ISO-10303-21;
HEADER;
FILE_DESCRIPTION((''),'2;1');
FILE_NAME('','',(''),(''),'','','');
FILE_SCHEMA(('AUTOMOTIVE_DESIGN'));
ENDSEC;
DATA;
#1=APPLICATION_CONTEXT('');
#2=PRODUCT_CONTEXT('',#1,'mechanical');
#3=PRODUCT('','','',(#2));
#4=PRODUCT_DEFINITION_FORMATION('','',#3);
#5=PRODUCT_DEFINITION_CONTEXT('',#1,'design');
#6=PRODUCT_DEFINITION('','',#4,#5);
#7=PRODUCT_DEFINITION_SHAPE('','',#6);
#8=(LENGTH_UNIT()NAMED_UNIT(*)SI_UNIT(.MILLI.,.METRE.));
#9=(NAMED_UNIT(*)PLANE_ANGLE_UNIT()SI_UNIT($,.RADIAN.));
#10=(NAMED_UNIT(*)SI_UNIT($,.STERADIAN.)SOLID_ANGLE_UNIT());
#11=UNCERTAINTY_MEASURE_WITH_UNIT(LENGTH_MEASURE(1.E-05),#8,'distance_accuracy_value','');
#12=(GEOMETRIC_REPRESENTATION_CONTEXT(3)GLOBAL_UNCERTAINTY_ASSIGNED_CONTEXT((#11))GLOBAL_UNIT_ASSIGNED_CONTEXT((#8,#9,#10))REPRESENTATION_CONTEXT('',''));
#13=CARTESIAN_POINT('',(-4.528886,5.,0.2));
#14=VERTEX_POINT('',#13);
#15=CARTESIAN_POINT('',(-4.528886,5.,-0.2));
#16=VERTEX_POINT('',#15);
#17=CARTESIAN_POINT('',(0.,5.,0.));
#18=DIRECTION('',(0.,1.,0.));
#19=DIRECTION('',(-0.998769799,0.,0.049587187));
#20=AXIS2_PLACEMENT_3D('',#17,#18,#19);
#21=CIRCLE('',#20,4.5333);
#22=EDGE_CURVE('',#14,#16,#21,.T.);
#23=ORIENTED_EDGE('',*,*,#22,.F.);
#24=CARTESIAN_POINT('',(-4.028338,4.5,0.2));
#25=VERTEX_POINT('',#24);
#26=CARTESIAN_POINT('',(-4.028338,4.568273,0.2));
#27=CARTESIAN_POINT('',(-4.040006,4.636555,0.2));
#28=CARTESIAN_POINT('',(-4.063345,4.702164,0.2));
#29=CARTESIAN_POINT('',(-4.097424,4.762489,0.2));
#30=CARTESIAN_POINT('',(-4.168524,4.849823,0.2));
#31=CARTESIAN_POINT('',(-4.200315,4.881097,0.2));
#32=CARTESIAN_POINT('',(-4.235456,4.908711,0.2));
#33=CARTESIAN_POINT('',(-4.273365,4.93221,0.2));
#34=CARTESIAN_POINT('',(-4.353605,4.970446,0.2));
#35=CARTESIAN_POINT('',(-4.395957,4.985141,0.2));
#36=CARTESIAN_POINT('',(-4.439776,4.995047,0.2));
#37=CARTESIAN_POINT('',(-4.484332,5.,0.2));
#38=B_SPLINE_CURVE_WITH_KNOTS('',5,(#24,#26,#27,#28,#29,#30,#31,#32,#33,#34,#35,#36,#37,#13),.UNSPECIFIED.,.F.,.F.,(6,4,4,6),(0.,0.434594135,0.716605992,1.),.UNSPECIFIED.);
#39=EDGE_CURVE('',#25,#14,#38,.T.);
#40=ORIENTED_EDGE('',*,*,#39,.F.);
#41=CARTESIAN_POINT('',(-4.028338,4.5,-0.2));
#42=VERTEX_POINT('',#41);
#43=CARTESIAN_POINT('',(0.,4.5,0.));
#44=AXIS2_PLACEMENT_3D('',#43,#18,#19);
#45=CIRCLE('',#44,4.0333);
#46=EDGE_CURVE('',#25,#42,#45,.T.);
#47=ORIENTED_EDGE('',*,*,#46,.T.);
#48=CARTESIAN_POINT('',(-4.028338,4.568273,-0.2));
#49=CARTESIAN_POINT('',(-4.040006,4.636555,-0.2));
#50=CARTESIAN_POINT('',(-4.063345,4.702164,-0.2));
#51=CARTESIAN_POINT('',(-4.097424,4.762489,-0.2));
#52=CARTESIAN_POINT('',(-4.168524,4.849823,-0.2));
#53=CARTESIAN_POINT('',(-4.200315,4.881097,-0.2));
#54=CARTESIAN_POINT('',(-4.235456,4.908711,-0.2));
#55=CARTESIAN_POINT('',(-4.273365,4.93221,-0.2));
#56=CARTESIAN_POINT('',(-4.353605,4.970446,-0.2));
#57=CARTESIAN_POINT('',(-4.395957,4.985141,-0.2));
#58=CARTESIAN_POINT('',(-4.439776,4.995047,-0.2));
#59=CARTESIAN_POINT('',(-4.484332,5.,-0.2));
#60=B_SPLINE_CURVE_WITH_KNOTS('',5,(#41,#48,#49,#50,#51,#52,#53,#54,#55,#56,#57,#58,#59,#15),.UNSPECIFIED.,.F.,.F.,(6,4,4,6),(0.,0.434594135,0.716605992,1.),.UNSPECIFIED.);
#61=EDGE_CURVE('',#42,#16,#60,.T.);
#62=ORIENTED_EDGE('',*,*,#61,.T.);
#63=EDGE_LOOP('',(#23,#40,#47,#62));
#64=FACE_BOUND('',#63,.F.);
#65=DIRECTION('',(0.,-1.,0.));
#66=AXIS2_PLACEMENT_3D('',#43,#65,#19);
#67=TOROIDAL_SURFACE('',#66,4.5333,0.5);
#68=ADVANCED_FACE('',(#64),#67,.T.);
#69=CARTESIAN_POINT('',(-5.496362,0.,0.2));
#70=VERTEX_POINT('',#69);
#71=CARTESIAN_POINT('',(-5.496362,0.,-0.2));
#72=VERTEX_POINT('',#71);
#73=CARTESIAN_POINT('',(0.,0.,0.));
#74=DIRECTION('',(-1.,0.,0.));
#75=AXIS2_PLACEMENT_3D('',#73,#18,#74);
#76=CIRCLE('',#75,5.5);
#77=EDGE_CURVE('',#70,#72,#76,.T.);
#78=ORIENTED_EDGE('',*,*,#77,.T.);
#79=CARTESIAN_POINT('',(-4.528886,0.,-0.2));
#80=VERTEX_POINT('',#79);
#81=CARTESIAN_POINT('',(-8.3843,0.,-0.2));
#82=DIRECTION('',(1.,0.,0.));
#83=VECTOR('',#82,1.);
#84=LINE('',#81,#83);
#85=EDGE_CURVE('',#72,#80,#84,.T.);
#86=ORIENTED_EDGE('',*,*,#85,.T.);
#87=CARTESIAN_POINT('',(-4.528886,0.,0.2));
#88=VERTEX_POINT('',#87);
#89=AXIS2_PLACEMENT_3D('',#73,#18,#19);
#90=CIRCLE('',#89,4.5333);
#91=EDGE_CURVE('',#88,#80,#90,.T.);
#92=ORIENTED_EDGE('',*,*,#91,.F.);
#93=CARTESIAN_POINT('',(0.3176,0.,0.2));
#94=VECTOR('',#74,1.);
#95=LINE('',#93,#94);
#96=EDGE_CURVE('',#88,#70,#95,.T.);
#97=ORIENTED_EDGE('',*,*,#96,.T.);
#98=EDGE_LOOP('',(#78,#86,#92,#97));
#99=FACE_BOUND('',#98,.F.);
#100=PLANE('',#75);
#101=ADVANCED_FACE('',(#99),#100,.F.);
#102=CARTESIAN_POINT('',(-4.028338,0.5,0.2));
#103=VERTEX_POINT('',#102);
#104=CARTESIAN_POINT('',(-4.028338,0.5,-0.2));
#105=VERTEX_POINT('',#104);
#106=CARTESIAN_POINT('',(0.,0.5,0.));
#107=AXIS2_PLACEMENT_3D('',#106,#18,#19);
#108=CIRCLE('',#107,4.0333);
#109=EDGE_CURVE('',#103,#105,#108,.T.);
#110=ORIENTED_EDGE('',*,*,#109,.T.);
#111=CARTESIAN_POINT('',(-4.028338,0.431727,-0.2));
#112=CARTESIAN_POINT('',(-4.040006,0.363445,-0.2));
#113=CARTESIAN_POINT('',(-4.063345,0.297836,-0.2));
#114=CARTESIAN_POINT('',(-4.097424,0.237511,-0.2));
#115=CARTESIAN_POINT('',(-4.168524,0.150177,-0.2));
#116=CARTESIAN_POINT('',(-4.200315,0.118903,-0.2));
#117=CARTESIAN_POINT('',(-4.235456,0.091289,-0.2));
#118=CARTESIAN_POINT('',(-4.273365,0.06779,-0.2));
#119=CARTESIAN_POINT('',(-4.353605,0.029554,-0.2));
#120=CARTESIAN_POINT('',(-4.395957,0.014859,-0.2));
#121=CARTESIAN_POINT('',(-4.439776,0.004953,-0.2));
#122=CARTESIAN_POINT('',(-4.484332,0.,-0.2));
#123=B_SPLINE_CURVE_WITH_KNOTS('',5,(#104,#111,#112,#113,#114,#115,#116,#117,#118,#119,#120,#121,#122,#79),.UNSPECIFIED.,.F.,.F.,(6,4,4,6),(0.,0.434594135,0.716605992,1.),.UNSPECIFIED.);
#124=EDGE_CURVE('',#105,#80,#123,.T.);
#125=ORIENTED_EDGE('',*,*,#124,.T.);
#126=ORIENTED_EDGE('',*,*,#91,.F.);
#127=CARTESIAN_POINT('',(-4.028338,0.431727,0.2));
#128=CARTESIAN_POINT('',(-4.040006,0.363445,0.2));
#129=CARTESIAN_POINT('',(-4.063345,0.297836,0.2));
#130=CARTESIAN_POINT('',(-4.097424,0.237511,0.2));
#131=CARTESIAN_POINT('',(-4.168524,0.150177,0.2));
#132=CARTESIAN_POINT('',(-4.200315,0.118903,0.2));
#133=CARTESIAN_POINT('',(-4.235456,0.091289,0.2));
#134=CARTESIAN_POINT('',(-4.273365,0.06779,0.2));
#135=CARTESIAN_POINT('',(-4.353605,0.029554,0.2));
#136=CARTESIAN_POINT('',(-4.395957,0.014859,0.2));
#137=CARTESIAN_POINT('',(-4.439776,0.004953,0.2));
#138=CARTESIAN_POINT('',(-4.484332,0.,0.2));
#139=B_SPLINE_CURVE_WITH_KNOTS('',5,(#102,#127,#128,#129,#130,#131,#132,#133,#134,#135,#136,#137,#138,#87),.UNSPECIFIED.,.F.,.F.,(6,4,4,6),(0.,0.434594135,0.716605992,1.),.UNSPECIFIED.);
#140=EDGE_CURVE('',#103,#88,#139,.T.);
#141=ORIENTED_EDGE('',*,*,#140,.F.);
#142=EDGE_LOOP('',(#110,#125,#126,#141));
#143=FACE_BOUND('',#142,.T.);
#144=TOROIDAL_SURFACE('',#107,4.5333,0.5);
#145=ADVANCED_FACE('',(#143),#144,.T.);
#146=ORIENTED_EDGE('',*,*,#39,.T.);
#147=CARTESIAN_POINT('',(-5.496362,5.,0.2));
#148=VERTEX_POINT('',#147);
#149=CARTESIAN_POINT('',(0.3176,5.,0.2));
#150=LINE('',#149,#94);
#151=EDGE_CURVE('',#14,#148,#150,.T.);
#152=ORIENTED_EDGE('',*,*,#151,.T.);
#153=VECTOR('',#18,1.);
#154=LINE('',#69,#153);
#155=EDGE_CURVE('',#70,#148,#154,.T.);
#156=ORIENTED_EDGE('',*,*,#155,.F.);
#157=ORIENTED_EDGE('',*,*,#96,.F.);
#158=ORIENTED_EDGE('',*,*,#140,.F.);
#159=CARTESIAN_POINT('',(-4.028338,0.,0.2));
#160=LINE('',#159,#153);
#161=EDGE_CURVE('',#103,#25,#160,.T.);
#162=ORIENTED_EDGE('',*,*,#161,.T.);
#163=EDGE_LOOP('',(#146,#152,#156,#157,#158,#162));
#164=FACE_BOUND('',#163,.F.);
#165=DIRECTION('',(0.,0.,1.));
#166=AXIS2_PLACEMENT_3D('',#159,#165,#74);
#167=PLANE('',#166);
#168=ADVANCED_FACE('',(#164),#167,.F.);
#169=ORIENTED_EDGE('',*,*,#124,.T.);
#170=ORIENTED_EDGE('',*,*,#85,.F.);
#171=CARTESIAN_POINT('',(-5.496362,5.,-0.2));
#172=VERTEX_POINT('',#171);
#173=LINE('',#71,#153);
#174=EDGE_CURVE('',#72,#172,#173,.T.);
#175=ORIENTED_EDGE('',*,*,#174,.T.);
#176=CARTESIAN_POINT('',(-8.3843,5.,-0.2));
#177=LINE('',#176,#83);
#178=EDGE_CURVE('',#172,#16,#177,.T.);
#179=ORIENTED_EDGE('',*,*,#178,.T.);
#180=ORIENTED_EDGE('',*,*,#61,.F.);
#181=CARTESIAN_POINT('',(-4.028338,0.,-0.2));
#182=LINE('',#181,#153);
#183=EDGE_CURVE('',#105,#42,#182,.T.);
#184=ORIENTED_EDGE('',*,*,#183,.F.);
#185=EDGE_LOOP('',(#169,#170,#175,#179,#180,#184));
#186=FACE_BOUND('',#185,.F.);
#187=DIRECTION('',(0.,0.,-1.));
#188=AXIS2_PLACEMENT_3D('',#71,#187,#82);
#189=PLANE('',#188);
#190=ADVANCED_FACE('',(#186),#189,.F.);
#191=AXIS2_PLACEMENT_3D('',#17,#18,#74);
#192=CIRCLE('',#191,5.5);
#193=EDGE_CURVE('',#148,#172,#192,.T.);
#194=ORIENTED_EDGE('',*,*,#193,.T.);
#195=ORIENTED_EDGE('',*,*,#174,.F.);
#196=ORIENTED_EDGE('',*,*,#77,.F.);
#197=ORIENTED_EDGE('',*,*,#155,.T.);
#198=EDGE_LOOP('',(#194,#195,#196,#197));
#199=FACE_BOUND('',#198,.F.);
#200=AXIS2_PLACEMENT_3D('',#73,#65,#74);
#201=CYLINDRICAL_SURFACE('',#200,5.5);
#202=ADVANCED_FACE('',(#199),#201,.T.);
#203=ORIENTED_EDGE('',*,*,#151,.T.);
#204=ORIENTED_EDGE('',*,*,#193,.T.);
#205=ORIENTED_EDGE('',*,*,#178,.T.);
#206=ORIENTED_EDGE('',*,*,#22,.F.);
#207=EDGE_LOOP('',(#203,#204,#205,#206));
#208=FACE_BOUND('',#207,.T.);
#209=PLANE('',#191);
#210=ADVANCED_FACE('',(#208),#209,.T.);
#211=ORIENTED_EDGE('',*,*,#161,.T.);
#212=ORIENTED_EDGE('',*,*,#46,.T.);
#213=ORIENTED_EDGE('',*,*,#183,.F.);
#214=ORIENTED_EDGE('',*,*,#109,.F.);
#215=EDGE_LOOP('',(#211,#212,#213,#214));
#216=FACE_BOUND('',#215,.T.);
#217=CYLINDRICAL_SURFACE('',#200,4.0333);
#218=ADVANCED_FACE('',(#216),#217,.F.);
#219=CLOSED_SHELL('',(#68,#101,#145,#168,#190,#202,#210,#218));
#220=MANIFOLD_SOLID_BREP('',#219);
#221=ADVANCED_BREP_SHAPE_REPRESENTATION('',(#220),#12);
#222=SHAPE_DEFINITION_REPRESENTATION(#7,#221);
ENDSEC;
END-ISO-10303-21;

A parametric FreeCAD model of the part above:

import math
import FreeCAD as App
import Part
import Sketcher

V = App.Vector
Q = App.Units.Quantity


def edges_at(feature, points):
    """Names of the edges that pass closest to the given points."""
    edges = feature.Shape.Edges
    near = lambda p: min(range(len(edges)), key=lambda i: edges[i].distToShape(Part.Vertex(*p))[0])
    return sorted({f"Edge{near(p) + 1}" for p in points})

doc = App.newDocument("Part")
params = doc.addObject("Spreadsheet::Sheet", "Params")
for row, (alias, value) in enumerate([
    ("sketch1_radius", "5.5 mm"),
    ("pad1_length", "5 mm"),
    ("fillet_radius", "0.5 mm"),
], start=1):
    params.set(f"A{row}", alias)
    params.set(f"B{row}", "=" + value)
    params.setAlias(f"B{row}", alias)

body = doc.addObject("PartDesign::Body", "Body")

# Sketch on XZ plane
sketch1 = body.newObject("Sketcher::SketchObject", "Sketch")
sketch1.AttachmentSupport = (doc.getObject("XZ_Plane"), [""])
sketch1.MapMode = "FlatFace"
sketch1.addGeometry([
    Part.ArcOfCircle(Part.Circle(V(0, 0, 0), V(0, 0, 1), 4.03), math.radians(-177), math.radians(177)),
    Part.LineSegment(V(-4.03, 0.2, 0), V(-5.5, 0.2, 0)),
    Part.ArcOfCircle(Part.Circle(V(0, 0, 0), V(0, 0, 1), 5.5), math.radians(-178), math.radians(178)),
    Part.LineSegment(V(-5.5, -0.2, 0), V(-4.03, -0.2, 0)),
], False)
sketch1.addConstraint([
    Sketcher.Constraint("Coincident", 0, 2, 1, 1),
    Sketcher.Constraint("Coincident", 1, 2, 2, 2),
    Sketcher.Constraint("Coincident", 2, 1, 3, 1),
    Sketcher.Constraint("Coincident", 3, 2, 0, 1),
    Sketcher.Constraint("Horizontal", 1),
    Sketcher.Constraint("Horizontal", 3),
    Sketcher.Constraint("Coincident", 0, 3, -1, 1),
    Sketcher.Constraint("Coincident", 2, 3, -1, 1),
    Sketcher.Constraint("Vertical", 1, 2, 2, 1),
    Sketcher.Constraint("Radius", 2, Q("5.5 mm")),
    Sketcher.Constraint("Radius", 0, Q("4.0333 mm")),
    Sketcher.Constraint("DistanceY", 2, 1, 1, 2, Q("0.4 mm")),
])
sketch1.setExpression("Constraints[9]", "Params.sketch1_radius")
pad1 = body.newObject("PartDesign::Pad", "Pad")
pad1.Profile = sketch1
pad1.setExpression("Length", "Params.pad1_length")
pad1.Reversed = True
doc.recompute()

fillet = body.newObject("PartDesign::Fillet", "Fillet")
fillet.Base = (pad1, edges_at(pad1, [(4.033, 0, 0), (4.033, 5, 0)]))
fillet.setExpression("Radius", "Params.fillet_radius")

doc.recompute()
